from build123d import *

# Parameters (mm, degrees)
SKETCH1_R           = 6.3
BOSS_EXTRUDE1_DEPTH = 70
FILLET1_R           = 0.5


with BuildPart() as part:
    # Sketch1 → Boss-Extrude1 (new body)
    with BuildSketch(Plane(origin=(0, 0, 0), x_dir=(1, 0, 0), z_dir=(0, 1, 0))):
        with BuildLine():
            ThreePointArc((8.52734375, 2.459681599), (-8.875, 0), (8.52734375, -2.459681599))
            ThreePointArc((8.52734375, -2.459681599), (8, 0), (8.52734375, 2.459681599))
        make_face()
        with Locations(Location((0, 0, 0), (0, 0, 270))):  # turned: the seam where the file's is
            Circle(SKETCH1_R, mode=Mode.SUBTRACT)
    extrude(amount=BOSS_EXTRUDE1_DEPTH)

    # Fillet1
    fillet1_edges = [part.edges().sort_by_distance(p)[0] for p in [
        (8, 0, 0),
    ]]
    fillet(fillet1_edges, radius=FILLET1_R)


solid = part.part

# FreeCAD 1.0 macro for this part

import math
import FreeCAD as App
import Part
import Sketcher
from FreeCAD import Vector
Q = App.Units.Quantity


def edges_at(feature, points):
    """Names of the edges that pass closest to the given points."""
    edges = feature.Shape.Edges
    near = lambda p: min(range(len(edges)), key=lambda i: edges[i].distToShape(Part.Vertex(*p))[0])
    return sorted({f"Edge{near(p) + 1}" for p in points})

doc = App.newDocument("Part")
body = doc.addObject("PartDesign::Body", "Body")

# Sketch on XZ plane
sketch1 = body.newObject("Sketcher::SketchObject", "Sketch")
sketch1.AttachmentSupport = (doc.getObject("XZ_Plane"), [""])
sketch1.MapMode = "FlatFace"
sketch1.addGeometry(Part.ArcOfCircle(Part.Circle(Vector(0, 0, 0), Vector(0, 0, 1), 8.9), math.radians(16), math.radians(344)), False)
sketch1.addGeometry(Part.ArcOfCircle(Part.Circle(Vector(14, 0, 0), Vector(0, 0, 1), 6), math.radians(156), math.radians(204)), False)
sketch1.addGeometry(Part.Circle(Vector(0, 0, 0), Vector(0, 0, 1), 6.3), False)
sketch1.addConstraint(Sketcher.Constraint("Coincident", 0, 1, 1, 1))
sketch1.addConstraint(Sketcher.Constraint("Coincident", 1, 2, 0, 2))
sketch1.addConstraint(Sketcher.Constraint("Coincident", 0, 3, -1, 1))
sketch1.addConstraint(Sketcher.Constraint("Coincident", 2, 3, -1, 1))
sketch1.addConstraint(Sketcher.Constraint("PointOnObject", 1, 3, -1))
sketch1.addConstraint(Sketcher.Constraint("Radius", 1, Q("6 mm")))
sketch1.addConstraint(Sketcher.Constraint("Diameter", 2, Q("12.6 mm")))
sketch1.addConstraint(Sketcher.Constraint("DistanceX", -1, 1, 1, 3, Q("14 mm")))
sketch1.addConstraint(Sketcher.Constraint("Radius", 0, Q("8.875 mm")))
pad1 = body.newObject("PartDesign::Pad", "Pad")
pad1.Profile = sketch1
pad1.Length = 70
pad1.Reversed = True
doc.recompute()

fillet = body.newObject("PartDesign::Fillet", "Fillet")
fillet.Base = (pad1, edges_at(pad1, [(8, 0, 0)]))
fillet.Radius = 0.5

doc.recompute()
